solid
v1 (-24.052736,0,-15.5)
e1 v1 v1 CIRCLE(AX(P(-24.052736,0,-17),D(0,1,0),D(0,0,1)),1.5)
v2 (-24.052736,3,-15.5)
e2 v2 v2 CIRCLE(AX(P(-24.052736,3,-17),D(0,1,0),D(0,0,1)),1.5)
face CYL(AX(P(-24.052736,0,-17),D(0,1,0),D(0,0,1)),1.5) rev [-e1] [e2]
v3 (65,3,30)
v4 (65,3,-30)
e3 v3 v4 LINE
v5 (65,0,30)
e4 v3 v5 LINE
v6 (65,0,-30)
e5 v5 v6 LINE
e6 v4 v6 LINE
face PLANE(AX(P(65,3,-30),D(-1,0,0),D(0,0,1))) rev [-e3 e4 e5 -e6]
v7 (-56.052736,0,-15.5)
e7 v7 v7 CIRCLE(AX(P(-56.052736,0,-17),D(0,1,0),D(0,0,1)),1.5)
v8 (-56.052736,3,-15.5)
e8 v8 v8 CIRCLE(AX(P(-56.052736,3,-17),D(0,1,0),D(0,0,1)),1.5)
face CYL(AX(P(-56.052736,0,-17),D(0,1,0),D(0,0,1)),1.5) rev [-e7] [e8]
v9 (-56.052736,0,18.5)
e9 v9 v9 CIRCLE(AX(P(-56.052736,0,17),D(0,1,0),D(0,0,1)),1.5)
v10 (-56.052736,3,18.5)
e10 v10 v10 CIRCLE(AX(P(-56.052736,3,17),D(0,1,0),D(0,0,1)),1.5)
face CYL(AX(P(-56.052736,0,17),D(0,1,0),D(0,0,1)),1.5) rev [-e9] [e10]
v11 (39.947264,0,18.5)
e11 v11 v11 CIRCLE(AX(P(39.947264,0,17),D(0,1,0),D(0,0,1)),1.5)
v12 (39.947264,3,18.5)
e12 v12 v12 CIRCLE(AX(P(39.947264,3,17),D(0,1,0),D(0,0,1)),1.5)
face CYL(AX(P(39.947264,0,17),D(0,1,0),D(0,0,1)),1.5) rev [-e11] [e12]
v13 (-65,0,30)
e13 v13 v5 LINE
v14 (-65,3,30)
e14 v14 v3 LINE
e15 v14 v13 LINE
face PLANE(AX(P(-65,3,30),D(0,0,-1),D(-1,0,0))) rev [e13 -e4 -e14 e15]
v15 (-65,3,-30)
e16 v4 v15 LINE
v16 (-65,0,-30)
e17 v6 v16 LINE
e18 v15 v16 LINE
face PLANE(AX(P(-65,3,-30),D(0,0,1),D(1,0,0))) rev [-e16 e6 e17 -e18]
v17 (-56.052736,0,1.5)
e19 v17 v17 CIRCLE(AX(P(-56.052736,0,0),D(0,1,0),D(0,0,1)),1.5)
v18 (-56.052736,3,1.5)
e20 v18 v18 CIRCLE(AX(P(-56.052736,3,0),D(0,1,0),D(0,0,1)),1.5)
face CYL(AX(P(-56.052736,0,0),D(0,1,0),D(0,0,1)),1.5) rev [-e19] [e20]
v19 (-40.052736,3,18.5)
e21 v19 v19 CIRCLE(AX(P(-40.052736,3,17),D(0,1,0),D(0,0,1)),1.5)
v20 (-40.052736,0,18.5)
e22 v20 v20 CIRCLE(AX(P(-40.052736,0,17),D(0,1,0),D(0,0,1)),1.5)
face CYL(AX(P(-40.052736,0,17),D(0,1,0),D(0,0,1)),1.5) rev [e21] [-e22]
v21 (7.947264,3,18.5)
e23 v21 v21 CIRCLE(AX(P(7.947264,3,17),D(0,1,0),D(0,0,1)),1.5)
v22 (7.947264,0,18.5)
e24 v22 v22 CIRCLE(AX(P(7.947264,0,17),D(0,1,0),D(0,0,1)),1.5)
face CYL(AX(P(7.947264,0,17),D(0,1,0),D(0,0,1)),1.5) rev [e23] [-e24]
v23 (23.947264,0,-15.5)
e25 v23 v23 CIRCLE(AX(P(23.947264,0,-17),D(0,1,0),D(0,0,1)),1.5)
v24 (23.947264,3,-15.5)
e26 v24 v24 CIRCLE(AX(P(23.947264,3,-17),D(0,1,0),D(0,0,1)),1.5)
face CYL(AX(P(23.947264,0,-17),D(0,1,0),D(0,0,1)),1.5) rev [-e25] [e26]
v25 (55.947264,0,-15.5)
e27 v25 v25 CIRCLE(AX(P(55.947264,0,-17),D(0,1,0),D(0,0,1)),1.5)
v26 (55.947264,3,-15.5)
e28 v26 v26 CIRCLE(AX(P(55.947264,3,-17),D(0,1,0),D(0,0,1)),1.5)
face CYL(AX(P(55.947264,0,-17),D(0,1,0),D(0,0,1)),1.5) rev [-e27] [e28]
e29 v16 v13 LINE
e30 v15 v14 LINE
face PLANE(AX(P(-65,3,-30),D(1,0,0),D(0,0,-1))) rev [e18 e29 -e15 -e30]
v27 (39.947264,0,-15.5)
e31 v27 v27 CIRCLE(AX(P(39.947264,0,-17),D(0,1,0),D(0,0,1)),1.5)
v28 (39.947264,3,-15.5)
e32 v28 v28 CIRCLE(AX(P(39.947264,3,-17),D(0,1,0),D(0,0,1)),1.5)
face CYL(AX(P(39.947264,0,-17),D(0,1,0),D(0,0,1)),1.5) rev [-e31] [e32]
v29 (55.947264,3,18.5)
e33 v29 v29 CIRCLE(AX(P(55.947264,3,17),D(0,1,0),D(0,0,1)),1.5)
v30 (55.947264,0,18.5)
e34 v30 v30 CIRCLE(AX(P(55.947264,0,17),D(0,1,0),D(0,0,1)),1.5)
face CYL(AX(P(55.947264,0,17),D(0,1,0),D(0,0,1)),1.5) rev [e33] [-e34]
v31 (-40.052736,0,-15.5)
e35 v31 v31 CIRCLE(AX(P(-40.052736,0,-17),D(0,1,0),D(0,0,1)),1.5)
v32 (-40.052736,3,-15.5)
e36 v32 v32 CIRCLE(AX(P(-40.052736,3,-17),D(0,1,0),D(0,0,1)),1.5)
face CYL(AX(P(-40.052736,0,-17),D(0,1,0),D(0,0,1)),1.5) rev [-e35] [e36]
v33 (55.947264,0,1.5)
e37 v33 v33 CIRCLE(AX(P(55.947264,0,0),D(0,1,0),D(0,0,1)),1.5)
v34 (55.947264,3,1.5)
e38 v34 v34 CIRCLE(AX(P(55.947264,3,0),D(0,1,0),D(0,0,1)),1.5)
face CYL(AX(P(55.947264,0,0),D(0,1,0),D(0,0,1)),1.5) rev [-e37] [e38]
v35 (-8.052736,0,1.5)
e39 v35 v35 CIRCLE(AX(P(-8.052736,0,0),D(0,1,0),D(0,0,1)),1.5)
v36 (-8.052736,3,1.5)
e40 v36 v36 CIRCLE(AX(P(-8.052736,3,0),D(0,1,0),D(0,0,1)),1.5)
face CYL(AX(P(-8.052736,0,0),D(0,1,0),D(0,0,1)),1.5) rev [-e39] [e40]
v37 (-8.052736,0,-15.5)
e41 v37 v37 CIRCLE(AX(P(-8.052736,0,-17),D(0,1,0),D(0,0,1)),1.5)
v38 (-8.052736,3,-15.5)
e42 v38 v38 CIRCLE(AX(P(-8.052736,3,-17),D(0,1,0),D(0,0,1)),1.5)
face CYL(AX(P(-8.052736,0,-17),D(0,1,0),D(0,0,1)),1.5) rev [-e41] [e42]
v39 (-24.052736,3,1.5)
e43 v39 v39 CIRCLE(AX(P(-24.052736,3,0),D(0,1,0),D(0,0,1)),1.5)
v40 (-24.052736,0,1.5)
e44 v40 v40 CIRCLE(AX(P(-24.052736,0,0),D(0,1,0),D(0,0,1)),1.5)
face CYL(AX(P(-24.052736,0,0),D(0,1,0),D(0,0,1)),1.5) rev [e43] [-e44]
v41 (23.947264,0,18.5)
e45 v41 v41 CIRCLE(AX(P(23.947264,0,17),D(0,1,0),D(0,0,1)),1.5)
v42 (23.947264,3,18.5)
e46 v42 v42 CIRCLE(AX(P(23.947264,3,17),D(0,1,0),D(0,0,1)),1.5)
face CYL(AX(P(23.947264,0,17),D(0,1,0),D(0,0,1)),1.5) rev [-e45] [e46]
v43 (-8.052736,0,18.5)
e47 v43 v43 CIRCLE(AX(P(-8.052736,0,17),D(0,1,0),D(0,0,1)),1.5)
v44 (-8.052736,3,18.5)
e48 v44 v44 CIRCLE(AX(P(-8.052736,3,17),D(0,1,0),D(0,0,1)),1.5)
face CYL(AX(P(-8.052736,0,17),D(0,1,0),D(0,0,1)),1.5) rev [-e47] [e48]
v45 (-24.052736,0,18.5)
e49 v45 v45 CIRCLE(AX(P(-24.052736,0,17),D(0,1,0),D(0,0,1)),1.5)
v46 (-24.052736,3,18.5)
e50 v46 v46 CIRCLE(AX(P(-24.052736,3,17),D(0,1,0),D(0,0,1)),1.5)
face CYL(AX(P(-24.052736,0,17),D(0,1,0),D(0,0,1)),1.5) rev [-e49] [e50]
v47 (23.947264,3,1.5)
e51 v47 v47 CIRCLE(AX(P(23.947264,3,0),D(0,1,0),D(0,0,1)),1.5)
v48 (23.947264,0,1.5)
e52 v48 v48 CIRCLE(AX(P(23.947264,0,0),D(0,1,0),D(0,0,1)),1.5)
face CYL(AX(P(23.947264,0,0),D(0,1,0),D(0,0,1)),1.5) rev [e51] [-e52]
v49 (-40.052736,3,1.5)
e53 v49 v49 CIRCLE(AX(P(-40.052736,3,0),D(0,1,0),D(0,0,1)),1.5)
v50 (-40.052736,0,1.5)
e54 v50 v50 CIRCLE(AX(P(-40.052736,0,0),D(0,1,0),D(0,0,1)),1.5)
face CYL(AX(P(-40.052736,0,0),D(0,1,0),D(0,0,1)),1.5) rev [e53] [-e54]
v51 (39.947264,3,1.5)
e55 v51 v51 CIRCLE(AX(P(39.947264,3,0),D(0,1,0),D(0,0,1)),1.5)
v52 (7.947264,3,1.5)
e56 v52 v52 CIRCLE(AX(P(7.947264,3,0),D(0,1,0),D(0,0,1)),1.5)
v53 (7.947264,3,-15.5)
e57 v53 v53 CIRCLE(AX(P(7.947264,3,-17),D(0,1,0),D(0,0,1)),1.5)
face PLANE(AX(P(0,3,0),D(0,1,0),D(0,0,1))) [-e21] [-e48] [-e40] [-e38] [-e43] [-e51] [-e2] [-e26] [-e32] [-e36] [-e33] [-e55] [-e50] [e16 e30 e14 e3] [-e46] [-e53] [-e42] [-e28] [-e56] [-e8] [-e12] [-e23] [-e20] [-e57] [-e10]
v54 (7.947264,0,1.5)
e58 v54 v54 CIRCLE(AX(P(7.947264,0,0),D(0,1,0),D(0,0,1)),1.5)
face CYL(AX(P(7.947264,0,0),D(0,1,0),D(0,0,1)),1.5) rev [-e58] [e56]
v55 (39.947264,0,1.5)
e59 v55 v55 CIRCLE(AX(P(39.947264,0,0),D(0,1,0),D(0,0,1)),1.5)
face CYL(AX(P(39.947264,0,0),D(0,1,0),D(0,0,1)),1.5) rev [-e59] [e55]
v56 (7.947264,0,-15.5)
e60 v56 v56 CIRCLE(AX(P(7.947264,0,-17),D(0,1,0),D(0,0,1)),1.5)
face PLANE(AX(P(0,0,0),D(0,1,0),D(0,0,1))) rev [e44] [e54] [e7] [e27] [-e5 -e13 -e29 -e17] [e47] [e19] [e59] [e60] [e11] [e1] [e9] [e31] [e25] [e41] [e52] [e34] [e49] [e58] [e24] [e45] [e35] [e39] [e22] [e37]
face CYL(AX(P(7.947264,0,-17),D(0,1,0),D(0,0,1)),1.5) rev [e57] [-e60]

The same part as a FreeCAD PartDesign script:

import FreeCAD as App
import Part
import Sketcher


def add_polygon(sketch, points):
    """Adds a closed chain of lines whose ends are joined by coincident constraints."""
    first, n = sketch.GeometryCount, len(points)
    for a, b in zip(points, points[1:] + points[:1]):
        sketch.addGeometry(Part.LineSegment(App.Vector(*a, 0), App.Vector(*b, 0)), False)
    for i in range(n):
        sketch.addConstraint(Sketcher.Constraint("Coincident", first + i, 2, first + (i + 1) % n, 1))

doc = App.newDocument("Part")
body = doc.addObject("PartDesign::Body", "Body")

sketch1 = body.newObject("Sketcher::SketchObject", "Sketch")
sketch1.AttachmentSupport = (doc.getObject("XZ_Plane"), [""])
sketch1.MapMode = "FlatFace"
add_polygon(sketch1, [(-65, -30), (-65, 30), (65, 30), (65, -30)])
sketch1.addConstraint([
    Sketcher.Constraint("Vertical", 0),
    Sketcher.Constraint("Horizontal", 1),
    Sketcher.Constraint("Vertical", 2),
    Sketcher.Constraint("Horizontal", 3),
    Sketcher.Constraint("Symmetric", 0, 2, 2, 2, -1, 1),
    Sketcher.Constraint("DistanceX", 1, 1, 1, 2, 130.0),
    Sketcher.Constraint("DistanceY", 0, 1, 0, 2, 60.0),
])
pad1 = body.newObject("PartDesign::Pad", "Pad")
pad1.Profile = sketch1
pad1.Length = 3
pad1.Reversed = True

sketch2 = body.newObject("Sketcher::SketchObject", "Sketch001")
sketch2.AttachmentSupport = (doc.getObject("XZ_Plane"), [""])
sketch2.MapMode = "FlatFace"
sketch2.AttachmentOffset = App.Placement(App.Vector(0, 0, -3), App.Rotation())
sketch2.addGeometry([
    Part.Circle(App.Vector(-56.1, -17, 0), App.Vector(0, 0, 1), 1.5),
    Part.Circle(App.Vector(-40.1, -17, 0), App.Vector(0, 0, 1), 1.5),
    Part.Circle(App.Vector(-24.1, -17, 0), App.Vector(0, 0, 1), 1.5),
    Part.Circle(App.Vector(-8.1, -17, 0), App.Vector(0, 0, 1), 1.5),
    Part.Circle(App.Vector(7.9, -17, 0), App.Vector(0, 0, 1), 1.5),
    Part.Circle(App.Vector(23.9, -17, 0), App.Vector(0, 0, 1), 1.5),
    Part.Circle(App.Vector(39.9, -17, 0), App.Vector(0, 0, 1), 1.5),
    Part.Circle(App.Vector(55.9, -17, 0), App.Vector(0, 0, 1), 1.5),
    Part.Circle(App.Vector(-56.1, 0, 0), App.Vector(0, 0, 1), 1.5),
    Part.Circle(App.Vector(-56.1, 17, 0), App.Vector(0, 0, 1), 1.5),
    Part.Circle(App.Vector(-40.1, 0, 0), App.Vector(0, 0, 1), 1.5),
    Part.Circle(App.Vector(-40.1, 17, 0), App.Vector(0, 0, 1), 1.5),
    Part.Circle(App.Vector(-24.1, 0, 0), App.Vector(0, 0, 1), 1.5),
    Part.Circle(App.Vector(-24.1, 17, 0), App.Vector(0, 0, 1), 1.5),
    Part.Circle(App.Vector(-8.1, 0, 0), App.Vector(0, 0, 1), 1.5),
    Part.Circle(App.Vector(-8.1, 17, 0), App.Vector(0, 0, 1), 1.5),
    Part.Circle(App.Vector(7.9, 0, 0), App.Vector(0, 0, 1), 1.5),
    Part.Circle(App.Vector(7.9, 17, 0), App.Vector(0, 0, 1), 1.5),
    Part.Circle(App.Vector(23.9, 0, 0), App.Vector(0, 0, 1), 1.5),
    Part.Circle(App.Vector(23.9, 17, 0), App.Vector(0, 0, 1), 1.5),
    Part.Circle(App.Vector(39.9, 0, 0), App.Vector(0, 0, 1), 1.5),
    Part.Circle(App.Vector(39.9, 17, 0), App.Vector(0, 0, 1), 1.5),
    Part.Circle(App.Vector(55.9, 0, 0), App.Vector(0, 0, 1), 1.5),
    Part.Circle(App.Vector(55.9, 17, 0), App.Vector(0, 0, 1), 1.5),
], False)
sketch2.addConstraint([
    Sketcher.Constraint("Equal", 0, 1),
    Sketcher.Constraint("Equal", 1, 2),
    Sketcher.Constraint("Equal", 2, 3),
    Sketcher.Constraint("Equal", 3, 4),
    Sketcher.Constraint("Equal", 4, 5),
    Sketcher.Constraint("Equal", 5, 6),
    Sketcher.Constraint("Equal", 6, 7),
    Sketcher.Constraint("Equal", 7, 8),
    Sketcher.Constraint("Equal", 8, 9),
    Sketcher.Constraint("Equal", 9, 10),
    Sketcher.Constraint("Equal", 10, 11),
    Sketcher.Constraint("Equal", 11, 12),
    Sketcher.Constraint("Equal", 12, 13),
    Sketcher.Constraint("Equal", 13, 14),
    Sketcher.Constraint("Equal", 14, 15),
    Sketcher.Constraint("Equal", 15, 16),
    Sketcher.Constraint("Equal", 16, 17),
    Sketcher.Constraint("Equal", 17, 18),
    Sketcher.Constraint("Equal", 18, 19),
    Sketcher.Constraint("Equal", 19, 20),
    Sketcher.Constraint("Equal", 20, 21),
    Sketcher.Constraint("Equal", 21, 22),
    Sketcher.Constraint("Equal", 22, 23),
    Sketcher.Constraint("Symmetric", 0, 3, 9, 3, -1),
    Sketcher.Constraint("Symmetric", 1, 3, 11, 3, -1),
    Sketcher.Constraint("Symmetric", 2, 3, 13, 3, -1),
    Sketcher.Constraint("Symmetric", 3, 3, 15, 3, -1),
    Sketcher.Constraint("Symmetric", 4, 3, 17, 3, -1),
    Sketcher.Constraint("Symmetric", 5, 3, 19, 3, -1),
    Sketcher.Constraint("Symmetric", 6, 3, 21, 3, -1),
    Sketcher.Constraint("Symmetric", 7, 3, 23, 3, -1),
    Sketcher.Constraint("PointOnObject", 8, 3, -1),
    Sketcher.Constraint("PointOnObject", 10, 3, -1),
    Sketcher.Constraint("PointOnObject", 12, 3, -1),
    Sketcher.Constraint("PointOnObject", 14, 3, -1),
    Sketcher.Constraint("PointOnObject", 16, 3, -1),
    Sketcher.Constraint("PointOnObject", 18, 3, -1),
    Sketcher.Constraint("PointOnObject", 20, 3, -1),
    Sketcher.Constraint("PointOnObject", 22, 3, -1),
    Sketcher.Constraint("Horizontal", 0, 3, 1, 3),
    Sketcher.Constraint("Horizontal", 1, 3, 2, 3),
    Sketcher.Constraint("Horizontal", 2, 3, 3, 3),
    Sketcher.Constraint("Horizontal", 3, 3, 4, 3),
    Sketcher.Constraint("Horizontal", 4, 3, 5, 3),
    Sketcher.Constraint("Horizontal", 5, 3, 6, 3),
    Sketcher.Constraint("Horizontal", 6, 3, 7, 3),
    Sketcher.Constraint("Vertical", 0, 3, 8, 3),
    Sketcher.Constraint("Vertical", 1, 3, 10, 3),
    Sketcher.Constraint("Vertical", 2, 3, 12, 3),
    Sketcher.Constraint("Vertical", 3, 3, 14, 3),
    Sketcher.Constraint("Vertical", 4, 3, 16, 3),
    Sketcher.Constraint("Vertical", 5, 3, 18, 3),
    Sketcher.Constraint("Vertical", 6, 3, 20, 3),
    Sketcher.Constraint("Vertical", 7, 3, 22, 3),
    Sketcher.Constraint("Diameter", 0, 3.0),
    Sketcher.Constraint("DistanceY", 0, 3, -1, 1, 17.0),
    Sketcher.Constraint("DistanceX", 0, 3, 1, 3, 16.0),
    Sketcher.Constraint("DistanceX", 1, 3, 2, 3, 16.0),
    Sketcher.Constraint("DistanceX", 2, 3, 3, 3, 16.0),
    Sketcher.Constraint("DistanceX", 3, 3, 4, 3, 16.0),
    Sketcher.Constraint("DistanceX", 4, 3, 5, 3, 16.0),
    Sketcher.Constraint("DistanceX", 5, 3, 6, 3, 16.0),
    Sketcher.Constraint("DistanceX", 6, 3, 7, 3, 16.0),
    Sketcher.Constraint("DistanceX", 0, 3, -1, 1, 56.052736),
])
pocket1 = body.newObject("PartDesign::Pocket", "Pocket")
pocket1.Profile = sketch2
pocket1.Length = 3
pocket1.Reversed = True

doc.recompute()
